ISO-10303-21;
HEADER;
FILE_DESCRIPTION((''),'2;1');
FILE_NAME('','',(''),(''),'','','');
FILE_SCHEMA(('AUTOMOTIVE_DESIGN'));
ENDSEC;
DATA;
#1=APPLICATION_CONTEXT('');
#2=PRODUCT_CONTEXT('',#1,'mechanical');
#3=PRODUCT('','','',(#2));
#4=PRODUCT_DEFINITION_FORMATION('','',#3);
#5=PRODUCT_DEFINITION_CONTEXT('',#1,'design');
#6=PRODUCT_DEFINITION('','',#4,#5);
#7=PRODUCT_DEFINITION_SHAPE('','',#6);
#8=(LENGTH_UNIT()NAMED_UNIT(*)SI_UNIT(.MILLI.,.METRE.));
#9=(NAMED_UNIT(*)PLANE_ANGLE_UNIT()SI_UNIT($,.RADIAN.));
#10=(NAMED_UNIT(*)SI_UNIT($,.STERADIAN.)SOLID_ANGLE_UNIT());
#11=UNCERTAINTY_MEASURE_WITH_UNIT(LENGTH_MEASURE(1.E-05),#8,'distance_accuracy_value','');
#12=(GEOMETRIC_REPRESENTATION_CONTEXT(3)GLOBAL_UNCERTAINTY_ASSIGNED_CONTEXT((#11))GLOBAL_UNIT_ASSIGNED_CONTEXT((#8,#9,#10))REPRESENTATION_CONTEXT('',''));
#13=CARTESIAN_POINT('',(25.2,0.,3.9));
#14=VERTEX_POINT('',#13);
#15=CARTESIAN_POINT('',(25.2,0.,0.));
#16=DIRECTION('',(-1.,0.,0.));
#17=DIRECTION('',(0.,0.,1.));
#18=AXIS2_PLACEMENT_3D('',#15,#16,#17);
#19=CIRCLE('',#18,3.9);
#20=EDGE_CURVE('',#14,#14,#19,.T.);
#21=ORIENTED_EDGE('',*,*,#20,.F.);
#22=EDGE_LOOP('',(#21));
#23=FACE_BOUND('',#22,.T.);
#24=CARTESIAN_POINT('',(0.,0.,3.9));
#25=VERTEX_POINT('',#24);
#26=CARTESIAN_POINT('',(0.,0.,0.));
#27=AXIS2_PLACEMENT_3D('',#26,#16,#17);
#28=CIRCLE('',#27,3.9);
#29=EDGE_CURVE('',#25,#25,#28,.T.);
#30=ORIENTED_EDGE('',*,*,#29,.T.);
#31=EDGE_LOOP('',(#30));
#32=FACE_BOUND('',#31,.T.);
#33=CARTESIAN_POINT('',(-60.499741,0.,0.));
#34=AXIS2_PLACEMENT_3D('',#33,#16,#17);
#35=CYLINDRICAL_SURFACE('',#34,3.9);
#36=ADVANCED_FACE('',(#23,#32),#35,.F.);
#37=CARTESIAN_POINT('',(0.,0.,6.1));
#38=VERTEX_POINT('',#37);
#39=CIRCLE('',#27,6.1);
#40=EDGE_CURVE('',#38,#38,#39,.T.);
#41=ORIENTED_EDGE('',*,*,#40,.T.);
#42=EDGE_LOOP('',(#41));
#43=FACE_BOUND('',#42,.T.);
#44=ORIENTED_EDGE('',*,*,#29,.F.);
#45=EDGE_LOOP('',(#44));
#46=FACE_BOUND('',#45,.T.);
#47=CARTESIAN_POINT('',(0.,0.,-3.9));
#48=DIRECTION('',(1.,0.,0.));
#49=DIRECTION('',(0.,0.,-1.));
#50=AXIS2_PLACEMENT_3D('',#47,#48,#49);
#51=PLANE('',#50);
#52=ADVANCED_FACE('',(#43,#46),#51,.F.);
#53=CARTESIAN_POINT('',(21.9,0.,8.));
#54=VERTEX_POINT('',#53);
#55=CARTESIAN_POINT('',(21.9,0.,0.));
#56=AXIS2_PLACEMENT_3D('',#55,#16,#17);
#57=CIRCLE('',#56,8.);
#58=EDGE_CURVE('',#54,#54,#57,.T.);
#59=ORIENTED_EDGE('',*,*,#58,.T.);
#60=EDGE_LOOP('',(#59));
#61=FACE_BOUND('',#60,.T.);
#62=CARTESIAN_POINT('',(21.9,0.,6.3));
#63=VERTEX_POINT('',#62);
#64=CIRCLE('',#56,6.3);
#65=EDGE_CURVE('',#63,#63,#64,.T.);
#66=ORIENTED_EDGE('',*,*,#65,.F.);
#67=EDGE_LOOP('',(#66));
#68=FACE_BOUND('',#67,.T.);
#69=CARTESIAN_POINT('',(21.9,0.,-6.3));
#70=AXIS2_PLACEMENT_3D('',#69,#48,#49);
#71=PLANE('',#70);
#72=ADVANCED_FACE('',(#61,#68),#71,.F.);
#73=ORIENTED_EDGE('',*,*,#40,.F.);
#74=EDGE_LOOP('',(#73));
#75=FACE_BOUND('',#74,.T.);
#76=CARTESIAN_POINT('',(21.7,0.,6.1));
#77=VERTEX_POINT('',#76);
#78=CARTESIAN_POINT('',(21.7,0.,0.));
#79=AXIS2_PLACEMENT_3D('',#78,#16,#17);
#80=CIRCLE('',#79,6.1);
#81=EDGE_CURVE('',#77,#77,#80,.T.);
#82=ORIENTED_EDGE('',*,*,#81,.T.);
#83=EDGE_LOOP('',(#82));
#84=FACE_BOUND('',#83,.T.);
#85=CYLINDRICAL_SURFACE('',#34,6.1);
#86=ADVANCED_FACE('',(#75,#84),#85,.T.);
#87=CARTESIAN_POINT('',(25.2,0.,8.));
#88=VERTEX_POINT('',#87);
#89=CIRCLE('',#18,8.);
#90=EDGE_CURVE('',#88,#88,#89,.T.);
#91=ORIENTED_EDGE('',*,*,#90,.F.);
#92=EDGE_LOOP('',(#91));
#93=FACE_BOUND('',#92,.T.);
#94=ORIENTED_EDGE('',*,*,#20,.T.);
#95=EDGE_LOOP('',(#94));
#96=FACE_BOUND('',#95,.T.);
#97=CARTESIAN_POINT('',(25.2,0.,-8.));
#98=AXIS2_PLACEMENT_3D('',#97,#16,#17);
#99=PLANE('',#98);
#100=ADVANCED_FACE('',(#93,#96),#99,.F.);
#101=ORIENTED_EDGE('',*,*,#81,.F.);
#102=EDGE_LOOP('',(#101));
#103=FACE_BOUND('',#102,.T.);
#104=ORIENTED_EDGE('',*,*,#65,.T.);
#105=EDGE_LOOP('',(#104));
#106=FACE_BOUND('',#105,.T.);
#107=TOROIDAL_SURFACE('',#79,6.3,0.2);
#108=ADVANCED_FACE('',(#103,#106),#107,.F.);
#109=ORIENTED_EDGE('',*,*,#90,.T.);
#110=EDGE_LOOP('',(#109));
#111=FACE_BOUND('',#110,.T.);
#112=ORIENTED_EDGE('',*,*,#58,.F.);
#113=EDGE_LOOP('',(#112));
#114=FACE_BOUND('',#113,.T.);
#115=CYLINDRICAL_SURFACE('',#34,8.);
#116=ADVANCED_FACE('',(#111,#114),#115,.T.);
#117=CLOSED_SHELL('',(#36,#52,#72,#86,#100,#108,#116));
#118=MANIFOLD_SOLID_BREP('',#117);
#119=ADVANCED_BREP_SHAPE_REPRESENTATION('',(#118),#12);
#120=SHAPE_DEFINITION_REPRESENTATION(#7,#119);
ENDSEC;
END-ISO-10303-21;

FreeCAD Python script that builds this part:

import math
import FreeCAD as App
import Part
import Sketcher

doc = App.newDocument("Part")
params = doc.addObject("Spreadsheet::Sheet", "Params")
for row, (alias, value) in enumerate([
    ("sketch1_radius", "0.2 mm"),
    ("sketch1_width", "25.2 mm"),
    ("sketch1_width2", "3.3 mm"),
    ("sketch1_height", "2.2 mm"),
    ("sketch1_height2", "4.1 mm"),
    ("revolution_angle", "360 deg"),
], start=1):
    params.set(f"A{row}", alias)
    params.set(f"B{row}", "=" + value)
    params.setAlias(f"B{row}", alias)

body = doc.addObject("PartDesign::Body", "Body")

sketch1 = body.newObject("Sketcher::SketchObject", "Sketch")
sketch1.AttachmentSupport = (doc.getObject("XZ_Plane"), [""])
sketch1.MapMode = "FlatFace"
sketch1.addGeometry([
    Part.LineSegment(App.Vector(0, -6.1, 0), App.Vector(0, -3.9, 0)),
    Part.LineSegment(App.Vector(0, -3.9, 0), App.Vector(25.2, -3.9, 0)),
    Part.LineSegment(App.Vector(25.2, -3.9, 0), App.Vector(25.2, -8, 0)),
    Part.LineSegment(App.Vector(25.2, -8, 0), App.Vector(21.9, -8, 0)),
    Part.LineSegment(App.Vector(21.9, -8, 0), App.Vector(21.9, -6.3, 0)),
    Part.ArcOfCircle(Part.Circle(App.Vector(21.7, -6.3, 0), App.Vector(0, 0, 1), 0.2), math.radians(0), math.radians(90)),
    Part.LineSegment(App.Vector(21.7, -6.1, 0), App.Vector(0, -6.1, 0)),
], False)
sketch1.addConstraint([
    Sketcher.Constraint("Coincident", 0, 2, 1, 1),
    Sketcher.Constraint("Coincident", 1, 2, 2, 1),
    Sketcher.Constraint("Coincident", 2, 2, 3, 1),
    Sketcher.Constraint("Coincident", 3, 2, 4, 1),
    Sketcher.Constraint("Tangent", 4, 2, 5, 1),
    Sketcher.Constraint("Tangent", 5, 2, 6, 1),
    Sketcher.Constraint("Coincident", 6, 2, 0, 1),
    Sketcher.Constraint("Vertical", 0),
    Sketcher.Constraint("Horizontal", 1),
    Sketcher.Constraint("Vertical", 2),
    Sketcher.Constraint("Horizontal", 3),
    Sketcher.Constraint("Vertical", 4),
    Sketcher.Constraint("Horizontal", 6),
    Sketcher.Constraint("PointOnObject", 0, 2, -2),
    Sketcher.Constraint("Radius", 5, 0.2),
    Sketcher.Constraint("DistanceX", 1, 1, 1, 2, 25.2),
    Sketcher.Constraint("DistanceX", 3, 2, 3, 1, 3.3),
    Sketcher.Constraint("DistanceY", 0, 1, 0, 2, 2.2),
    Sketcher.Constraint("DistanceY", 2, 2, 2, 1, 4.1),
    Sketcher.Constraint("DistanceY", 2, 2, -1, 1, 8.0),
])
sketch1.setExpression("Constraints[14]", "Params.sketch1_radius")
sketch1.setExpression("Constraints[15]", "Params.sketch1_width")
sketch1.setExpression("Constraints[16]", "Params.sketch1_width2")
sketch1.setExpression("Constraints[17]", "Params.sketch1_height")
sketch1.setExpression("Constraints[18]", "Params.sketch1_height2")
revolution = body.newObject("PartDesign::Revolution", "Revolution")
revolution.Profile = sketch1
revolution.ReferenceAxis = (sketch1, ["H_Axis"])
revolution.setExpression("Angle", "Params.revolution_angle")

doc.recompute()
